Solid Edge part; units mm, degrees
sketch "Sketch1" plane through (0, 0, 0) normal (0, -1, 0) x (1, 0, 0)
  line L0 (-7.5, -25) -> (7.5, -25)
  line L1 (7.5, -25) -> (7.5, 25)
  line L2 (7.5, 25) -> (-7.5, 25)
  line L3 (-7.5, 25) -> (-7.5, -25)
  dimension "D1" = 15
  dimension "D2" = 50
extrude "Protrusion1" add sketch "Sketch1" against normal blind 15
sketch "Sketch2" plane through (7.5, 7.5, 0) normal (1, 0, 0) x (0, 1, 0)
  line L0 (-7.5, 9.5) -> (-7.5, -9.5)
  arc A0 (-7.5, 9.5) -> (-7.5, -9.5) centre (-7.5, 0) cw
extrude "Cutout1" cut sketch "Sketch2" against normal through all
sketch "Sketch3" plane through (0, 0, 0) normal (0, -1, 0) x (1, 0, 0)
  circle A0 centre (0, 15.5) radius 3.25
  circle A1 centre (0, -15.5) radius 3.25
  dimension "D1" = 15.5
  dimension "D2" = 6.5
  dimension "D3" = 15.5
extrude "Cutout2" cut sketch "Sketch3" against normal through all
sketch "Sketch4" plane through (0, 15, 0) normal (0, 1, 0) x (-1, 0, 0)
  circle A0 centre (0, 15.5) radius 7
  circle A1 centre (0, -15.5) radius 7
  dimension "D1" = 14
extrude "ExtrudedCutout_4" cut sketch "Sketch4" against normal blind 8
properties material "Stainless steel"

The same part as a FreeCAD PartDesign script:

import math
import FreeCAD as App
import Part
import Sketcher

V = App.Vector

doc = App.newDocument("Part")
params = doc.addObject("Spreadsheet::Sheet", "Params")
for row, (alias, value) in enumerate([
    ("sketch1_height", "50 mm"),
    ("pad1_length", "15 mm"),
    ("sketch2_radius", "9.5 mm"),
    ("sketch3_diameter", "6.5 mm"),
    ("sketch4_diameter", "14 mm"),
    ("pocket3_length", "8 mm"),
], start=1):
    params.set(f"A{row}", alias)
    params.set(f"B{row}", "=" + value)
    params.setAlias(f"B{row}", alias)

body = doc.addObject("PartDesign::Body", "Body")

sketch1 = body.newObject("Sketcher::SketchObject", "Sketch")
sketch1.AttachmentSupport = (doc.getObject("XZ_Plane"), [""])
sketch1.MapMode = "FlatFace"
sketch1.addGeometry([
    Part.LineSegment(V(-8, 25, 0), V(-8, -25, 0)),
    Part.LineSegment(V(-8, -25, 0), V(8, -25, 0)),
    Part.LineSegment(V(8, -25, 0), V(8, 25, 0)),
    Part.LineSegment(V(8, 25, 0), V(-8, 25, 0)),
], False)
sketch1.addConstraint([
    Sketcher.Constraint("Coincident", 0, 2, 1, 1),
    Sketcher.Constraint("Coincident", 1, 2, 2, 1),
    Sketcher.Constraint("Coincident", 2, 2, 3, 1),
    Sketcher.Constraint("Coincident", 3, 2, 0, 1),
    Sketcher.Constraint("Vertical", 0),
    Sketcher.Constraint("Horizontal", 1),
    Sketcher.Constraint("Vertical", 2),
    Sketcher.Constraint("Horizontal", 3),
    Sketcher.Constraint("Symmetric", 0, 2, 2, 2, -1, 1),
    Sketcher.Constraint("DistanceX", 0, 2, -1, 1, 7.5),
    Sketcher.Constraint("DistanceY", 0, 2, 0, 1, 50.0),
])
sketch1.setExpression("Constraints[10]", "Params.sketch1_height")
pad1 = body.newObject("PartDesign::Pad", "Pad")
pad1.Profile = sketch1
pad1.setExpression("Length", "Params.pad1_length")
pad1.Reversed = True

sketch2 = body.newObject("Sketcher::SketchObject", "Sketch001")
sketch2.AttachmentSupport = (doc.getObject("YZ_Plane"), [""])
sketch2.MapMode = "FlatFace"
sketch2.AttachmentOffset = App.Placement(V(0, 0, 7.5), App.Rotation())
sketch2.addGeometry([
    Part.ArcOfCircle(Part.Circle(V(0, 0, 0), V(0, 0, 1), 10), math.radians(-90), math.radians(90)),
    Part.LineSegment(V(0, 10, 0), V(0, -10, 0)),
], False)
sketch2.addConstraint([
    Sketcher.Constraint("Coincident", 0, 1, 1, 2),
    Sketcher.Constraint("Coincident", 1, 1, 0, 2),
    Sketcher.Constraint("Vertical", 1),
    Sketcher.Constraint("Coincident", 0, 3, -1, 1),
    Sketcher.Constraint("PointOnObject", 0, 1, -2),
    Sketcher.Constraint("Radius", 0, 9.5),
])
sketch2.setExpression("Constraints[5]", "Params.sketch2_radius")
pocket1 = body.newObject("PartDesign::Pocket", "Pocket")
pocket1.Profile = sketch2
pocket1.Type = "ThroughAll"

sketch3 = body.newObject("Sketcher::SketchObject", "Sketch002")
sketch3.AttachmentSupport = (doc.getObject("XZ_Plane"), [""])
sketch3.MapMode = "FlatFace"
sketch3.addGeometry([
    Part.Circle(V(0, 15.5, 0), V(0, 0, 1), 3.2),
    Part.Circle(V(0, -15.5, 0), V(0, 0, 1), 3.2),
], False)
sketch3.addConstraint([
    Sketcher.Constraint("Equal", 0, 1),
    Sketcher.Constraint("Symmetric", 0, 3, 1, 3, -1, 1),
    Sketcher.Constraint("PointOnObject", 0, 3, -2),
    Sketcher.Constraint("Diameter", 0, 6.5),
    Sketcher.Constraint("DistanceY", 1, 3, 0, 3, 31.0),
])
sketch3.setExpression("Constraints[3]", "Params.sketch3_diameter")
pocket2 = body.newObject("PartDesign::Pocket", "Pocket001")
pocket2.Profile = sketch3
pocket2.Type = "ThroughAll"

sketch4 = body.newObject("Sketcher::SketchObject", "Sketch003")
sketch4.AttachmentSupport = (doc.getObject("XZ_Plane"), [""])
sketch4.MapMode = "FlatFace"
sketch4.AttachmentOffset = App.Placement(V(0, 0, -15), App.Rotation())
sketch4.addGeometry([
    Part.Circle(V(0, 16, 0), V(0, 0, 1), 7),
    Part.Circle(V(0, -16, 0), V(0, 0, 1), 7),
], False)
sketch4.addConstraint([
    Sketcher.Constraint("Equal", 0, 1),
    Sketcher.Constraint("Symmetric", 0, 3, 1, 3, -1, 1),
    Sketcher.Constraint("PointOnObject", 0, 3, -2),
    Sketcher.Constraint("Diameter", 0, 14.0),
    Sketcher.Constraint("DistanceY", 1, 3, 0, 3, 31.0),
])
sketch4.setExpression("Constraints[3]", "Params.sketch4_diameter")
pocket3 = body.newObject("PartDesign::Pocket", "Pocket002")
pocket3.Profile = sketch4
pocket3.setExpression("Length", "Params.pocket3_length")
pocket3.Reversed = True

doc.recompute()
